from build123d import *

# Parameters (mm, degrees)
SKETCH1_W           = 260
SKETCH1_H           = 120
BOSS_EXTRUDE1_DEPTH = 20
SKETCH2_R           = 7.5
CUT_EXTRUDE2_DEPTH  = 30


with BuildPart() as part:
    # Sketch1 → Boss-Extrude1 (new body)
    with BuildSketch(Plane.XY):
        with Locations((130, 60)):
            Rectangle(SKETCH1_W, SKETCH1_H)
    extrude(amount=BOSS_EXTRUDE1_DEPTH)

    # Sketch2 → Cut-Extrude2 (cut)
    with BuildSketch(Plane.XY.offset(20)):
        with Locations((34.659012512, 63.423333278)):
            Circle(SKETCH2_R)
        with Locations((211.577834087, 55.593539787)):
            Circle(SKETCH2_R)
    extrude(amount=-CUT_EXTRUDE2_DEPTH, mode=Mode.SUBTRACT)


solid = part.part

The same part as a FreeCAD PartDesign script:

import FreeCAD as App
import Part
import Sketcher

V = App.Vector

doc = App.newDocument("Part")
body = doc.addObject("PartDesign::Body", "Body")

# Sketch on XY plane
sketch1 = doc.addObject("Sketcher::SketchObject", "Sketch")
body.addObject(sketch1)
sketch1.AttachmentSupport = (doc.XY_Plane, [""])
sketch1.MapMode = "FlatFace"
sketch1.addGeometry([
    Part.LineSegment(V(0, 120, 0), V(0, 0, 0)),
    Part.LineSegment(V(0, 0, 0), V(260, 0, 0)),
    Part.LineSegment(V(260, 0, 0), V(260, 120, 0)),
    Part.LineSegment(V(260, 120, 0), V(0, 120, 0)),
], False)
sketch1.addConstraint([
    Sketcher.Constraint("Coincident", 0, 2, 1, 1),
    Sketcher.Constraint("Coincident", 1, 2, 2, 1),
    Sketcher.Constraint("Coincident", 2, 2, 3, 1),
    Sketcher.Constraint("Coincident", 3, 2, 0, 1),
    Sketcher.Constraint("Vertical", 0),
    Sketcher.Constraint("Horizontal", 1),
    Sketcher.Constraint("Vertical", 2),
    Sketcher.Constraint("Horizontal", 3),
    Sketcher.Constraint("Coincident", 0, 2, -1, 1),
    Sketcher.Constraint("DistanceX", 1, 1, 1, 2, 260.0),
    Sketcher.Constraint("DistanceY", 0, 2, 0, 1, 120.0),
])
pad1 = doc.addObject("PartDesign::Pad", "Pad")
body.addObject(pad1)
pad1.Profile = sketch1
pad1.Length = 20

# Sketch on XY plane
sketch2 = doc.addObject("Sketcher::SketchObject", "Sketch001")
body.addObject(sketch2)
sketch2.AttachmentSupport = (doc.XY_Plane, [""])
sketch2.MapMode = "FlatFace"
sketch2.AttachmentOffset = App.Placement(V(0, 0, 20), App.Rotation())
sketch2.addGeometry([
    Part.Circle(V(35, 63, 0), V(0, 0, 1), 8),
    Part.Circle(V(212, 56, 0), V(0, 0, 1), 8),
], False)
sketch2.addConstraint([
    Sketcher.Constraint("Equal", 0, 1),
    Sketcher.Constraint("Diameter", 0, 15.0),
    Sketcher.Constraint("DistanceY", -1, 1, 1, 3, 55.59354),
    Sketcher.Constraint("DistanceX", 0, 3, 1, 3, 176.918822),
    Sketcher.Constraint("DistanceX", -1, 1, 0, 3, 34.659013),
    Sketcher.Constraint("DistanceY", -1, 1, 0, 3, 63.423333),
])
pocket1 = doc.addObject("PartDesign::Pocket", "Pocket")
body.addObject(pocket1)
pocket1.Profile = sketch2
pocket1.Length = 30

doc.recompute()
